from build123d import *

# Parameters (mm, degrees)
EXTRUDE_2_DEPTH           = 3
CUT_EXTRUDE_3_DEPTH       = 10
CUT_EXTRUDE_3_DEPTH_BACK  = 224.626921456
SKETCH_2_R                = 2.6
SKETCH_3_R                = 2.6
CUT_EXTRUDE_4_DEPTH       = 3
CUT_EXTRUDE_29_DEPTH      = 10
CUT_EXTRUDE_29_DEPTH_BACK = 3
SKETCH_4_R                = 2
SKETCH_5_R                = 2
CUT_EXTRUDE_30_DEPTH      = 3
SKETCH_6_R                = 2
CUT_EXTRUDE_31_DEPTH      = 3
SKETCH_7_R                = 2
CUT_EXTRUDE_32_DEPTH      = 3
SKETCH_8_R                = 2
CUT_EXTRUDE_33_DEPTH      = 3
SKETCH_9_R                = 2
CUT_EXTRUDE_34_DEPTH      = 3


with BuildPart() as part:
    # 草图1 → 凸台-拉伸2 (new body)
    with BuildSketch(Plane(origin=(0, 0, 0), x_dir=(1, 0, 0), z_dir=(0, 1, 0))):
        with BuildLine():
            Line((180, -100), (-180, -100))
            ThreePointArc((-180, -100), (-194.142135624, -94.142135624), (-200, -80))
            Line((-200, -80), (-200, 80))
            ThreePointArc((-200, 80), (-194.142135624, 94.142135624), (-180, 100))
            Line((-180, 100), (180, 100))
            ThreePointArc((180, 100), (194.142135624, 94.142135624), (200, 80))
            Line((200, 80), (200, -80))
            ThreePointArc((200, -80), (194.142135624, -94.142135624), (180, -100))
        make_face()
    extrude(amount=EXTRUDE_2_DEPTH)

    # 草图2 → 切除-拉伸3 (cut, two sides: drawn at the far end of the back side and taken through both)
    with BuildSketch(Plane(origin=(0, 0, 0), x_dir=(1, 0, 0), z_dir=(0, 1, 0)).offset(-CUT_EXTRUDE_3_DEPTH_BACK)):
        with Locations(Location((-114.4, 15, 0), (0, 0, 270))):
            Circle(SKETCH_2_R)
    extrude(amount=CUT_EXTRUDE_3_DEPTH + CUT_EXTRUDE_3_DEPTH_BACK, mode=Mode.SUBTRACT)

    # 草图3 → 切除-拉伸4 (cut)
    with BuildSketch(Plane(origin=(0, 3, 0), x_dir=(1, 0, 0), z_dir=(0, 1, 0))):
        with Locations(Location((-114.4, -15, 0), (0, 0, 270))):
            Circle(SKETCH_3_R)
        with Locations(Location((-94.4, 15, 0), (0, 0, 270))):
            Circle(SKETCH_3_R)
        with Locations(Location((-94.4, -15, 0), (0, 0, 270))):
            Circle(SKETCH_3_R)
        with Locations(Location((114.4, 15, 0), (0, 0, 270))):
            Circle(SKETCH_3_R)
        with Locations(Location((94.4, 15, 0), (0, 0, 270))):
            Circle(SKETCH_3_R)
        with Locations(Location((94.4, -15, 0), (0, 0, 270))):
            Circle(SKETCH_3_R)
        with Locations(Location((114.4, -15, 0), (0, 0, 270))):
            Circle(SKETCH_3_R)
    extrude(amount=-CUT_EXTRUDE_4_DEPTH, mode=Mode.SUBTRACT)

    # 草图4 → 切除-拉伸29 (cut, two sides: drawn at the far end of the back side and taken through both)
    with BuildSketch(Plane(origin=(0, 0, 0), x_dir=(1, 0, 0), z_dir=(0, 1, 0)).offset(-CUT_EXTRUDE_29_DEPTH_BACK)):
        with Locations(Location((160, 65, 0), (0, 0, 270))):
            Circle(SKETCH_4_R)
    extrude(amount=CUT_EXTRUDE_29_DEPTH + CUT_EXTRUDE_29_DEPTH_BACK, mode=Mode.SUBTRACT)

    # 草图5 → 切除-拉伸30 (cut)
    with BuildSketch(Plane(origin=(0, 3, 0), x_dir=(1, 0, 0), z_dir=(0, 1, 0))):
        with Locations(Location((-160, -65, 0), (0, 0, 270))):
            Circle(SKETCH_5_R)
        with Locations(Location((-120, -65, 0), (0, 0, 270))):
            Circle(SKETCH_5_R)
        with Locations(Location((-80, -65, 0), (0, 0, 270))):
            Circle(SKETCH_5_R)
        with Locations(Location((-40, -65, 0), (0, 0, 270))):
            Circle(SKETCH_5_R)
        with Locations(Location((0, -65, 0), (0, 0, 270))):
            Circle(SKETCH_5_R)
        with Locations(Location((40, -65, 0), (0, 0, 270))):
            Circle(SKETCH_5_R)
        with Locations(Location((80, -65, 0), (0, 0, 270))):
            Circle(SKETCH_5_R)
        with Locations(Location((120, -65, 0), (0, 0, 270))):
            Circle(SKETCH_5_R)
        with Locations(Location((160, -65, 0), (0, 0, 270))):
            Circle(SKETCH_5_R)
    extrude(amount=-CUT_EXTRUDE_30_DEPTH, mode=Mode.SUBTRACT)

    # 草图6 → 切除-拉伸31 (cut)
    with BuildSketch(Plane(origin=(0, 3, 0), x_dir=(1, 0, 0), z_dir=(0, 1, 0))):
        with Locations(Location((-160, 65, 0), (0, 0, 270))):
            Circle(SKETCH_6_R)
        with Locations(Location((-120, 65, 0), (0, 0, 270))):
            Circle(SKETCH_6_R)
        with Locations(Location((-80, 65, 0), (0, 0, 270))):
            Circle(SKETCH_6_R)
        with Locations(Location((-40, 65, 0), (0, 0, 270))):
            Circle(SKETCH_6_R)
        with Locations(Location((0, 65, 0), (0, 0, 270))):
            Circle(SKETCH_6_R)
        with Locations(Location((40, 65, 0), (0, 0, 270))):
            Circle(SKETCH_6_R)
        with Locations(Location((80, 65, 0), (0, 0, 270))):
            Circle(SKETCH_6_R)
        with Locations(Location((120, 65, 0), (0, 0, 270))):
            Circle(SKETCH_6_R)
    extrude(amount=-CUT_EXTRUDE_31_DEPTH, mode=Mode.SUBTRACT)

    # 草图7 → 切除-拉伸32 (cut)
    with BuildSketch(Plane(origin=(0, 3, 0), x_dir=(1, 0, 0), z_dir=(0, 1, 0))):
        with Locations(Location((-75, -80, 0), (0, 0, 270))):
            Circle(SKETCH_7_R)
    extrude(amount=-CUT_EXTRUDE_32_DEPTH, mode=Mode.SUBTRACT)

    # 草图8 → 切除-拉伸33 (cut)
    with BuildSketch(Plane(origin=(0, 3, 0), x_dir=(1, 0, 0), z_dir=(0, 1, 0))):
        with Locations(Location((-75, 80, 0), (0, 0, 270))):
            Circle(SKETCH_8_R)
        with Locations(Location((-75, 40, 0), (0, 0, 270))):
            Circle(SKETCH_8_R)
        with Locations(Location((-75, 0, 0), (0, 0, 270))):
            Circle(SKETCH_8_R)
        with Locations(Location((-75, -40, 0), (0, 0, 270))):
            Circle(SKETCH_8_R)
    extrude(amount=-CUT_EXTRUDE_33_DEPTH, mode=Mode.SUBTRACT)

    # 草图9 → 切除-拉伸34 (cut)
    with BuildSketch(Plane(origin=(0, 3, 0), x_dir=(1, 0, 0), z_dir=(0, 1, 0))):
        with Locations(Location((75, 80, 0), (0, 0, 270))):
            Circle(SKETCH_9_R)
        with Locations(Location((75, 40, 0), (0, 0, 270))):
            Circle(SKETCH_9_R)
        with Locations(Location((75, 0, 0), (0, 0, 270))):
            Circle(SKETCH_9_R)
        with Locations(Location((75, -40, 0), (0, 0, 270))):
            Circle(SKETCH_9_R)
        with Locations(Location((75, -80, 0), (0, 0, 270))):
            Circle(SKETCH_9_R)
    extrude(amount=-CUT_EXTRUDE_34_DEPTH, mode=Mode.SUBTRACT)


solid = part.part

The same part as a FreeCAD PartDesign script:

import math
import FreeCAD as App
import Part
import Sketcher
from FreeCAD import Vector

doc = App.newDocument("Part")
body = doc.addObject("PartDesign::Body", "Body")

sketch1 = body.newObject("Sketcher::SketchObject", "Sketch")
sketch1.AttachmentSupport = (doc.getObject("XZ_Plane"), [""])
sketch1.MapMode = "FlatFace"
sketch1.addGeometry([
    Part.LineSegment(Vector(-180, 100, 0), Vector(180, 100, 0)),
    Part.ArcOfCircle(Part.Circle(Vector(180, 80, 0), Vector(0, 0, 1), 20), math.radians(0), math.radians(90)),
    Part.LineSegment(Vector(200, 80, 0), Vector(200, -80, 0)),
    Part.ArcOfCircle(Part.Circle(Vector(180, -80, 0), Vector(0, 0, 1), 20), math.radians(-90), math.radians(0)),
    Part.LineSegment(Vector(180, -100, 0), Vector(-180, -100, 0)),
    Part.ArcOfCircle(Part.Circle(Vector(-180, -80, 0), Vector(0, 0, 1), 20), math.radians(180), math.radians(270)),
    Part.LineSegment(Vector(-200, -80, 0), Vector(-200, 80, 0)),
    Part.ArcOfCircle(Part.Circle(Vector(-180, 80, 0), Vector(0, 0, 1), 20), math.radians(90), math.radians(180)),
], False)
sketch1.addConstraint([
    Sketcher.Constraint("Tangent", 0, 2, 1, 2),
    Sketcher.Constraint("Tangent", 1, 1, 2, 1),
    Sketcher.Constraint("Tangent", 2, 2, 3, 2),
    Sketcher.Constraint("Tangent", 3, 1, 4, 1),
    Sketcher.Constraint("Tangent", 4, 2, 5, 2),
    Sketcher.Constraint("Tangent", 5, 1, 6, 1),
    Sketcher.Constraint("Tangent", 6, 2, 7, 2),
    Sketcher.Constraint("Tangent", 7, 1, 0, 1),
    Sketcher.Constraint("Horizontal", 0),
    Sketcher.Constraint("Vertical", 2),
    Sketcher.Constraint("Horizontal", 4),
    Sketcher.Constraint("Vertical", 6),
    Sketcher.Constraint("Equal", 1, 3),
    Sketcher.Constraint("Equal", 3, 5),
    Sketcher.Constraint("Equal", 5, 7),
    Sketcher.Constraint("Symmetric", 1, 3, 5, 3, -1, 1),
    Sketcher.Constraint("Radius", 1, 20.0),
    Sketcher.Constraint("DistanceX", 0, 1, 0, 2, 360.0),
    Sketcher.Constraint("DistanceY", 2, 2, 2, 1, 160.0),
])
pad1 = body.newObject("PartDesign::Pad", "Pad")
pad1.Profile = sketch1
pad1.Length = 3
pad1.Reversed = True

sketch2 = body.newObject("Sketcher::SketchObject", "Sketch001")
sketch2.AttachmentSupport = (doc.getObject("XZ_Plane"), [""])
sketch2.MapMode = "FlatFace"
sketch2.addGeometry(Part.Circle(Vector(-114.4, -15, 0), Vector(0, 0, 1), 2.6), False)
sketch2.addConstraint([
    Sketcher.Constraint("Diameter", 0, 5.2),
    Sketcher.Constraint("DistanceY", 0, 3, -1, 1, 15.0),
    Sketcher.Constraint("DistanceX", 0, 3, -1, 1, 114.4),
])
pocket1 = body.newObject("PartDesign::Pocket", "Pocket")
pocket1.Profile = sketch2
pocket1.Type = "ThroughAll"
pocket1.Midplane = True

sketch3 = body.newObject("Sketcher::SketchObject", "Sketch002")
sketch3.AttachmentSupport = (doc.getObject("XZ_Plane"), [""])
sketch3.MapMode = "FlatFace"
sketch3.AttachmentOffset = App.Placement(Vector(0, 0, -3), App.Rotation())
sketch3.addGeometry([
    Part.Circle(Vector(-114.4, 15, 0), Vector(0, 0, 1), 2.6),
    Part.Circle(Vector(-94.4, -15, 0), Vector(0, 0, 1), 2.6),
    Part.Circle(Vector(-94.4, 15, 0), Vector(0, 0, 1), 2.6),
    Part.Circle(Vector(114.4, -15, 0), Vector(0, 0, 1), 2.6),
    Part.Circle(Vector(94.4, -15, 0), Vector(0, 0, 1), 2.6),
    Part.Circle(Vector(94.4, 15, 0), Vector(0, 0, 1), 2.6),
    Part.Circle(Vector(114.4, 15, 0), Vector(0, 0, 1), 2.6),
], False)
sketch3.addConstraint([
    Sketcher.Constraint("Equal", 0, 1),
    Sketcher.Constraint("Equal", 1, 2),
    Sketcher.Constraint("Equal", 2, 3),
    Sketcher.Constraint("Equal", 3, 4),
    Sketcher.Constraint("Equal", 4, 5),
    Sketcher.Constraint("Equal", 5, 6),
    Sketcher.Constraint("Symmetric", 0, 3, 3, 3, -1, 1),
    Sketcher.Constraint("Symmetric", 2, 3, 4, 3, -1, 1),
    Sketcher.Constraint("Symmetric", 1, 3, 5, 3, -1, 1),
    Sketcher.Constraint("Symmetric", 1, 3, 4, 3, -2),
    Sketcher.Constraint("Symmetric", 0, 3, 6, 3, -2),
    Sketcher.Constraint("Horizontal", 0, 3, 2, 3),
    Sketcher.Constraint("Diameter", 0, 5.2),
    Sketcher.Constraint("DistanceY", -1, 1, 0, 3, 15.0),
    Sketcher.Constraint("DistanceX", 0, 3, 1, 3, 20.0),
    Sketcher.Constraint("DistanceX", 0, 3, -1, 1, 114.4),
])
pocket2 = body.newObject("PartDesign::Pocket", "Pocket001")
pocket2.Profile = sketch3
pocket2.Length = 3
pocket2.Reversed = True

sketch4 = body.newObject("Sketcher::SketchObject", "Sketch003")
sketch4.AttachmentSupport = (doc.getObject("XZ_Plane"), [""])
sketch4.MapMode = "FlatFace"
sketch4.addGeometry(Part.Circle(Vector(160, -65, 0), Vector(0, 0, 1), 2), False)
sketch4.addConstraint([
    Sketcher.Constraint("Diameter", 0, 4.0),
    Sketcher.Constraint("DistanceX", -1, 1, 0, 3, 160.0),
    Sketcher.Constraint("DistanceY", 0, 3, -1, 1, 65.0),
])
pocket3 = body.newObject("PartDesign::Pocket", "Pocket002")
pocket3.Profile = sketch4
pocket3.Type = "ThroughAll"
pocket3.Midplane = True

sketch5 = body.newObject("Sketcher::SketchObject", "Sketch004")
sketch5.AttachmentSupport = (doc.getObject("XZ_Plane"), [""])
sketch5.MapMode = "FlatFace"
sketch5.AttachmentOffset = App.Placement(Vector(0, 0, -3), App.Rotation())
sketch5.addGeometry([
    Part.Circle(Vector(-160, 65, 0), Vector(0, 0, 1), 2),
    Part.Circle(Vector(-120, 65, 0), Vector(0, 0, 1), 2),
    Part.Circle(Vector(-80, 65, 0), Vector(0, 0, 1), 2),
    Part.Circle(Vector(-40, 65, 0), Vector(0, 0, 1), 2),
    Part.Circle(Vector(0, 65, 0), Vector(0, 0, 1), 2),
    Part.Circle(Vector(40, 65, 0), Vector(0, 0, 1), 2),
    Part.Circle(Vector(80, 65, 0), Vector(0, 0, 1), 2),
    Part.Circle(Vector(120, 65, 0), Vector(0, 0, 1), 2),
    Part.Circle(Vector(160, 65, 0), Vector(0, 0, 1), 2),
], False)
sketch5.addConstraint([
    Sketcher.Constraint("Equal", 0, 1),
    Sketcher.Constraint("Equal", 1, 2),
    Sketcher.Constraint("Equal", 2, 3),
    Sketcher.Constraint("Equal", 3, 4),
    Sketcher.Constraint("Equal", 4, 5),
    Sketcher.Constraint("Equal", 5, 6),
    Sketcher.Constraint("Equal", 6, 7),
    Sketcher.Constraint("Equal", 7, 8),
    Sketcher.Constraint("Symmetric", 3, 3, 5, 3, -2),
    Sketcher.Constraint("Symmetric", 2, 3, 6, 3, -2),
    Sketcher.Constraint("Symmetric", 1, 3, 7, 3, -2),
    Sketcher.Constraint("Symmetric", 0, 3, 8, 3, -2),
    Sketcher.Constraint("PointOnObject", 4, 3, -2),
    Sketcher.Constraint("Horizontal", 0, 3, 1, 3),
    Sketcher.Constraint("Horizontal", 1, 3, 2, 3),
    Sketcher.Constraint("Horizontal", 2, 3, 3, 3),
    Sketcher.Constraint("Horizontal", 3, 3, 4, 3),
    Sketcher.Constraint("Diameter", 0, 4.0),
    Sketcher.Constraint("DistanceX", 0, 3, -1, 1, 160.0),
    Sketcher.Constraint("DistanceY", -1, 1, 0, 3, 65.0),
    Sketcher.Constraint("DistanceX", 1, 3, -1, 1, 120.0),
    Sketcher.Constraint("DistanceX", 2, 3, -1, 1, 80.0),
    Sketcher.Constraint("DistanceX", 3, 3, -1, 1, 40.0),
])
pocket4 = body.newObject("PartDesign::Pocket", "Pocket003")
pocket4.Profile = sketch5
pocket4.Length = 3
pocket4.Reversed = True

sketch6 = body.newObject("Sketcher::SketchObject", "Sketch005")
sketch6.AttachmentSupport = (doc.getObject("XZ_Plane"), [""])
sketch6.MapMode = "FlatFace"
sketch6.AttachmentOffset = App.Placement(Vector(0, 0, -3), App.Rotation())
sketch6.addGeometry([
    Part.Circle(Vector(-160, -65, 0), Vector(0, 0, 1), 2),
    Part.Circle(Vector(-120, -65, 0), Vector(0, 0, 1), 2),
    Part.Circle(Vector(-80, -65, 0), Vector(0, 0, 1), 2),
    Part.Circle(Vector(-40, -65, 0), Vector(0, 0, 1), 2),
    Part.Circle(Vector(0, -65, 0), Vector(0, 0, 1), 2),
    Part.Circle(Vector(40, -65, 0), Vector(0, 0, 1), 2),
    Part.Circle(Vector(80, -65, 0), Vector(0, 0, 1), 2),
    Part.Circle(Vector(120, -65, 0), Vector(0, 0, 1), 2),
], False)
sketch6.addConstraint([
    Sketcher.Constraint("Equal", 0, 1),
    Sketcher.Constraint("Equal", 1, 2),
    Sketcher.Constraint("Equal", 2, 3),
    Sketcher.Constraint("Equal", 3, 4),
    Sketcher.Constraint("Equal", 4, 5),
    Sketcher.Constraint("Equal", 5, 6),
    Sketcher.Constraint("Equal", 6, 7),
    Sketcher.Constraint("Symmetric", 3, 3, 5, 3, -2),
    Sketcher.Constraint("Symmetric", 2, 3, 6, 3, -2),
    Sketcher.Constraint("Symmetric", 1, 3, 7, 3, -2),
    Sketcher.Constraint("PointOnObject", 4, 3, -2),
    Sketcher.Constraint("Horizontal", 0, 3, 1, 3),
    Sketcher.Constraint("Horizontal", 1, 3, 2, 3),
    Sketcher.Constraint("Horizontal", 2, 3, 3, 3),
    Sketcher.Constraint("Horizontal", 3, 3, 4, 3),
    Sketcher.Constraint("Diameter", 0, 4.0),
    Sketcher.Constraint("DistanceX", 0, 3, -1, 1, 160.0),
    Sketcher.Constraint("DistanceY", 0, 3, -1, 1, 65.0),
    Sketcher.Constraint("DistanceX", 1, 3, -1, 1, 120.0),
    Sketcher.Constraint("DistanceX", 2, 3, -1, 1, 80.0),
    Sketcher.Constraint("DistanceX", 3, 3, -1, 1, 40.0),
])
pocket5 = body.newObject("PartDesign::Pocket", "Pocket004")
pocket5.Profile = sketch6
pocket5.Length = 3
pocket5.Reversed = True

sketch7 = body.newObject("Sketcher::SketchObject", "Sketch006")
sketch7.AttachmentSupport = (doc.getObject("XZ_Plane"), [""])
sketch7.MapMode = "FlatFace"
sketch7.AttachmentOffset = App.Placement(Vector(0, 0, -3), App.Rotation())
sketch7.addGeometry(Part.Circle(Vector(-75, 80, 0), Vector(0, 0, 1), 2), False)
sketch7.addConstraint([
    Sketcher.Constraint("Diameter", 0, 4.0),
    Sketcher.Constraint("DistanceX", 0, 3, -1, 1, 75.0),
    Sketcher.Constraint("DistanceY", -1, 1, 0, 3, 80.0),
])
pocket6 = body.newObject("PartDesign::Pocket", "Pocket005")
pocket6.Profile = sketch7
pocket6.Length = 3
pocket6.Reversed = True

sketch8 = body.newObject("Sketcher::SketchObject", "Sketch007")
sketch8.AttachmentSupport = (doc.getObject("XZ_Plane"), [""])
sketch8.MapMode = "FlatFace"
sketch8.AttachmentOffset = App.Placement(Vector(0, 0, -3), App.Rotation())
sketch8.addGeometry([
    Part.Circle(Vector(-75, -80, 0), Vector(0, 0, 1), 2),
    Part.Circle(Vector(-75, -40, 0), Vector(0, 0, 1), 2),
    Part.Circle(Vector(-75, 0, 0), Vector(0, 0, 1), 2),
    Part.Circle(Vector(-75, 40, 0), Vector(0, 0, 1), 2),
], False)
sketch8.addConstraint([
    Sketcher.Constraint("Equal", 0, 1),
    Sketcher.Constraint("Equal", 1, 2),
    Sketcher.Constraint("Equal", 2, 3),
    Sketcher.Constraint("Symmetric", 1, 3, 3, 3, -1),
    Sketcher.Constraint("PointOnObject", 2, 3, -1),
    Sketcher.Constraint("Vertical", 0, 3, 1, 3),
    Sketcher.Constraint("Vertical", 1, 3, 2, 3),
    Sketcher.Constraint("Diameter", 0, 4.0),
    Sketcher.Constraint("DistanceX", 0, 3, -1, 1, 75.0),
    Sketcher.Constraint("DistanceY", 0, 3, -1, 1, 80.0),
    Sketcher.Constraint("DistanceY", 1, 3, -1, 1, 40.0),
])
pocket7 = body.newObject("PartDesign::Pocket", "Pocket006")
pocket7.Profile = sketch8
pocket7.Length = 3
pocket7.Reversed = True

sketch9 = body.newObject("Sketcher::SketchObject", "Sketch008")
sketch9.AttachmentSupport = (doc.getObject("XZ_Plane"), [""])
sketch9.MapMode = "FlatFace"
sketch9.AttachmentOffset = App.Placement(Vector(0, 0, -3), App.Rotation())
sketch9.addGeometry([
    Part.Circle(Vector(75, -80, 0), Vector(0, 0, 1), 2),
    Part.Circle(Vector(75, -40, 0), Vector(0, 0, 1), 2),
    Part.Circle(Vector(75, 0, 0), Vector(0, 0, 1), 2),
    Part.Circle(Vector(75, 40, 0), Vector(0, 0, 1), 2),
    Part.Circle(Vector(75, 80, 0), Vector(0, 0, 1), 2),
], False)
sketch9.addConstraint([
    Sketcher.Constraint("Equal", 0, 1),
    Sketcher.Constraint("Equal", 1, 2),
    Sketcher.Constraint("Equal", 2, 3),
    Sketcher.Constraint("Equal", 3, 4),
    Sketcher.Constraint("Symmetric", 1, 3, 3, 3, -1),
    Sketcher.Constraint("Symmetric", 0, 3, 4, 3, -1),
    Sketcher.Constraint("PointOnObject", 2, 3, -1),
    Sketcher.Constraint("Vertical", 0, 3, 1, 3),
    Sketcher.Constraint("Vertical", 1, 3, 2, 3),
    Sketcher.Constraint("Diameter", 0, 4.0),
    Sketcher.Constraint("DistanceX", -1, 1, 0, 3, 75.0),
    Sketcher.Constraint("DistanceY", 0, 3, -1, 1, 80.0),
    Sketcher.Constraint("DistanceY", 1, 3, -1, 1, 40.0),
])
pocket8 = body.newObject("PartDesign::Pocket", "Pocket007")
pocket8.Profile = sketch9
pocket8.Length = 3
pocket8.Reversed = True

doc.recompute()
